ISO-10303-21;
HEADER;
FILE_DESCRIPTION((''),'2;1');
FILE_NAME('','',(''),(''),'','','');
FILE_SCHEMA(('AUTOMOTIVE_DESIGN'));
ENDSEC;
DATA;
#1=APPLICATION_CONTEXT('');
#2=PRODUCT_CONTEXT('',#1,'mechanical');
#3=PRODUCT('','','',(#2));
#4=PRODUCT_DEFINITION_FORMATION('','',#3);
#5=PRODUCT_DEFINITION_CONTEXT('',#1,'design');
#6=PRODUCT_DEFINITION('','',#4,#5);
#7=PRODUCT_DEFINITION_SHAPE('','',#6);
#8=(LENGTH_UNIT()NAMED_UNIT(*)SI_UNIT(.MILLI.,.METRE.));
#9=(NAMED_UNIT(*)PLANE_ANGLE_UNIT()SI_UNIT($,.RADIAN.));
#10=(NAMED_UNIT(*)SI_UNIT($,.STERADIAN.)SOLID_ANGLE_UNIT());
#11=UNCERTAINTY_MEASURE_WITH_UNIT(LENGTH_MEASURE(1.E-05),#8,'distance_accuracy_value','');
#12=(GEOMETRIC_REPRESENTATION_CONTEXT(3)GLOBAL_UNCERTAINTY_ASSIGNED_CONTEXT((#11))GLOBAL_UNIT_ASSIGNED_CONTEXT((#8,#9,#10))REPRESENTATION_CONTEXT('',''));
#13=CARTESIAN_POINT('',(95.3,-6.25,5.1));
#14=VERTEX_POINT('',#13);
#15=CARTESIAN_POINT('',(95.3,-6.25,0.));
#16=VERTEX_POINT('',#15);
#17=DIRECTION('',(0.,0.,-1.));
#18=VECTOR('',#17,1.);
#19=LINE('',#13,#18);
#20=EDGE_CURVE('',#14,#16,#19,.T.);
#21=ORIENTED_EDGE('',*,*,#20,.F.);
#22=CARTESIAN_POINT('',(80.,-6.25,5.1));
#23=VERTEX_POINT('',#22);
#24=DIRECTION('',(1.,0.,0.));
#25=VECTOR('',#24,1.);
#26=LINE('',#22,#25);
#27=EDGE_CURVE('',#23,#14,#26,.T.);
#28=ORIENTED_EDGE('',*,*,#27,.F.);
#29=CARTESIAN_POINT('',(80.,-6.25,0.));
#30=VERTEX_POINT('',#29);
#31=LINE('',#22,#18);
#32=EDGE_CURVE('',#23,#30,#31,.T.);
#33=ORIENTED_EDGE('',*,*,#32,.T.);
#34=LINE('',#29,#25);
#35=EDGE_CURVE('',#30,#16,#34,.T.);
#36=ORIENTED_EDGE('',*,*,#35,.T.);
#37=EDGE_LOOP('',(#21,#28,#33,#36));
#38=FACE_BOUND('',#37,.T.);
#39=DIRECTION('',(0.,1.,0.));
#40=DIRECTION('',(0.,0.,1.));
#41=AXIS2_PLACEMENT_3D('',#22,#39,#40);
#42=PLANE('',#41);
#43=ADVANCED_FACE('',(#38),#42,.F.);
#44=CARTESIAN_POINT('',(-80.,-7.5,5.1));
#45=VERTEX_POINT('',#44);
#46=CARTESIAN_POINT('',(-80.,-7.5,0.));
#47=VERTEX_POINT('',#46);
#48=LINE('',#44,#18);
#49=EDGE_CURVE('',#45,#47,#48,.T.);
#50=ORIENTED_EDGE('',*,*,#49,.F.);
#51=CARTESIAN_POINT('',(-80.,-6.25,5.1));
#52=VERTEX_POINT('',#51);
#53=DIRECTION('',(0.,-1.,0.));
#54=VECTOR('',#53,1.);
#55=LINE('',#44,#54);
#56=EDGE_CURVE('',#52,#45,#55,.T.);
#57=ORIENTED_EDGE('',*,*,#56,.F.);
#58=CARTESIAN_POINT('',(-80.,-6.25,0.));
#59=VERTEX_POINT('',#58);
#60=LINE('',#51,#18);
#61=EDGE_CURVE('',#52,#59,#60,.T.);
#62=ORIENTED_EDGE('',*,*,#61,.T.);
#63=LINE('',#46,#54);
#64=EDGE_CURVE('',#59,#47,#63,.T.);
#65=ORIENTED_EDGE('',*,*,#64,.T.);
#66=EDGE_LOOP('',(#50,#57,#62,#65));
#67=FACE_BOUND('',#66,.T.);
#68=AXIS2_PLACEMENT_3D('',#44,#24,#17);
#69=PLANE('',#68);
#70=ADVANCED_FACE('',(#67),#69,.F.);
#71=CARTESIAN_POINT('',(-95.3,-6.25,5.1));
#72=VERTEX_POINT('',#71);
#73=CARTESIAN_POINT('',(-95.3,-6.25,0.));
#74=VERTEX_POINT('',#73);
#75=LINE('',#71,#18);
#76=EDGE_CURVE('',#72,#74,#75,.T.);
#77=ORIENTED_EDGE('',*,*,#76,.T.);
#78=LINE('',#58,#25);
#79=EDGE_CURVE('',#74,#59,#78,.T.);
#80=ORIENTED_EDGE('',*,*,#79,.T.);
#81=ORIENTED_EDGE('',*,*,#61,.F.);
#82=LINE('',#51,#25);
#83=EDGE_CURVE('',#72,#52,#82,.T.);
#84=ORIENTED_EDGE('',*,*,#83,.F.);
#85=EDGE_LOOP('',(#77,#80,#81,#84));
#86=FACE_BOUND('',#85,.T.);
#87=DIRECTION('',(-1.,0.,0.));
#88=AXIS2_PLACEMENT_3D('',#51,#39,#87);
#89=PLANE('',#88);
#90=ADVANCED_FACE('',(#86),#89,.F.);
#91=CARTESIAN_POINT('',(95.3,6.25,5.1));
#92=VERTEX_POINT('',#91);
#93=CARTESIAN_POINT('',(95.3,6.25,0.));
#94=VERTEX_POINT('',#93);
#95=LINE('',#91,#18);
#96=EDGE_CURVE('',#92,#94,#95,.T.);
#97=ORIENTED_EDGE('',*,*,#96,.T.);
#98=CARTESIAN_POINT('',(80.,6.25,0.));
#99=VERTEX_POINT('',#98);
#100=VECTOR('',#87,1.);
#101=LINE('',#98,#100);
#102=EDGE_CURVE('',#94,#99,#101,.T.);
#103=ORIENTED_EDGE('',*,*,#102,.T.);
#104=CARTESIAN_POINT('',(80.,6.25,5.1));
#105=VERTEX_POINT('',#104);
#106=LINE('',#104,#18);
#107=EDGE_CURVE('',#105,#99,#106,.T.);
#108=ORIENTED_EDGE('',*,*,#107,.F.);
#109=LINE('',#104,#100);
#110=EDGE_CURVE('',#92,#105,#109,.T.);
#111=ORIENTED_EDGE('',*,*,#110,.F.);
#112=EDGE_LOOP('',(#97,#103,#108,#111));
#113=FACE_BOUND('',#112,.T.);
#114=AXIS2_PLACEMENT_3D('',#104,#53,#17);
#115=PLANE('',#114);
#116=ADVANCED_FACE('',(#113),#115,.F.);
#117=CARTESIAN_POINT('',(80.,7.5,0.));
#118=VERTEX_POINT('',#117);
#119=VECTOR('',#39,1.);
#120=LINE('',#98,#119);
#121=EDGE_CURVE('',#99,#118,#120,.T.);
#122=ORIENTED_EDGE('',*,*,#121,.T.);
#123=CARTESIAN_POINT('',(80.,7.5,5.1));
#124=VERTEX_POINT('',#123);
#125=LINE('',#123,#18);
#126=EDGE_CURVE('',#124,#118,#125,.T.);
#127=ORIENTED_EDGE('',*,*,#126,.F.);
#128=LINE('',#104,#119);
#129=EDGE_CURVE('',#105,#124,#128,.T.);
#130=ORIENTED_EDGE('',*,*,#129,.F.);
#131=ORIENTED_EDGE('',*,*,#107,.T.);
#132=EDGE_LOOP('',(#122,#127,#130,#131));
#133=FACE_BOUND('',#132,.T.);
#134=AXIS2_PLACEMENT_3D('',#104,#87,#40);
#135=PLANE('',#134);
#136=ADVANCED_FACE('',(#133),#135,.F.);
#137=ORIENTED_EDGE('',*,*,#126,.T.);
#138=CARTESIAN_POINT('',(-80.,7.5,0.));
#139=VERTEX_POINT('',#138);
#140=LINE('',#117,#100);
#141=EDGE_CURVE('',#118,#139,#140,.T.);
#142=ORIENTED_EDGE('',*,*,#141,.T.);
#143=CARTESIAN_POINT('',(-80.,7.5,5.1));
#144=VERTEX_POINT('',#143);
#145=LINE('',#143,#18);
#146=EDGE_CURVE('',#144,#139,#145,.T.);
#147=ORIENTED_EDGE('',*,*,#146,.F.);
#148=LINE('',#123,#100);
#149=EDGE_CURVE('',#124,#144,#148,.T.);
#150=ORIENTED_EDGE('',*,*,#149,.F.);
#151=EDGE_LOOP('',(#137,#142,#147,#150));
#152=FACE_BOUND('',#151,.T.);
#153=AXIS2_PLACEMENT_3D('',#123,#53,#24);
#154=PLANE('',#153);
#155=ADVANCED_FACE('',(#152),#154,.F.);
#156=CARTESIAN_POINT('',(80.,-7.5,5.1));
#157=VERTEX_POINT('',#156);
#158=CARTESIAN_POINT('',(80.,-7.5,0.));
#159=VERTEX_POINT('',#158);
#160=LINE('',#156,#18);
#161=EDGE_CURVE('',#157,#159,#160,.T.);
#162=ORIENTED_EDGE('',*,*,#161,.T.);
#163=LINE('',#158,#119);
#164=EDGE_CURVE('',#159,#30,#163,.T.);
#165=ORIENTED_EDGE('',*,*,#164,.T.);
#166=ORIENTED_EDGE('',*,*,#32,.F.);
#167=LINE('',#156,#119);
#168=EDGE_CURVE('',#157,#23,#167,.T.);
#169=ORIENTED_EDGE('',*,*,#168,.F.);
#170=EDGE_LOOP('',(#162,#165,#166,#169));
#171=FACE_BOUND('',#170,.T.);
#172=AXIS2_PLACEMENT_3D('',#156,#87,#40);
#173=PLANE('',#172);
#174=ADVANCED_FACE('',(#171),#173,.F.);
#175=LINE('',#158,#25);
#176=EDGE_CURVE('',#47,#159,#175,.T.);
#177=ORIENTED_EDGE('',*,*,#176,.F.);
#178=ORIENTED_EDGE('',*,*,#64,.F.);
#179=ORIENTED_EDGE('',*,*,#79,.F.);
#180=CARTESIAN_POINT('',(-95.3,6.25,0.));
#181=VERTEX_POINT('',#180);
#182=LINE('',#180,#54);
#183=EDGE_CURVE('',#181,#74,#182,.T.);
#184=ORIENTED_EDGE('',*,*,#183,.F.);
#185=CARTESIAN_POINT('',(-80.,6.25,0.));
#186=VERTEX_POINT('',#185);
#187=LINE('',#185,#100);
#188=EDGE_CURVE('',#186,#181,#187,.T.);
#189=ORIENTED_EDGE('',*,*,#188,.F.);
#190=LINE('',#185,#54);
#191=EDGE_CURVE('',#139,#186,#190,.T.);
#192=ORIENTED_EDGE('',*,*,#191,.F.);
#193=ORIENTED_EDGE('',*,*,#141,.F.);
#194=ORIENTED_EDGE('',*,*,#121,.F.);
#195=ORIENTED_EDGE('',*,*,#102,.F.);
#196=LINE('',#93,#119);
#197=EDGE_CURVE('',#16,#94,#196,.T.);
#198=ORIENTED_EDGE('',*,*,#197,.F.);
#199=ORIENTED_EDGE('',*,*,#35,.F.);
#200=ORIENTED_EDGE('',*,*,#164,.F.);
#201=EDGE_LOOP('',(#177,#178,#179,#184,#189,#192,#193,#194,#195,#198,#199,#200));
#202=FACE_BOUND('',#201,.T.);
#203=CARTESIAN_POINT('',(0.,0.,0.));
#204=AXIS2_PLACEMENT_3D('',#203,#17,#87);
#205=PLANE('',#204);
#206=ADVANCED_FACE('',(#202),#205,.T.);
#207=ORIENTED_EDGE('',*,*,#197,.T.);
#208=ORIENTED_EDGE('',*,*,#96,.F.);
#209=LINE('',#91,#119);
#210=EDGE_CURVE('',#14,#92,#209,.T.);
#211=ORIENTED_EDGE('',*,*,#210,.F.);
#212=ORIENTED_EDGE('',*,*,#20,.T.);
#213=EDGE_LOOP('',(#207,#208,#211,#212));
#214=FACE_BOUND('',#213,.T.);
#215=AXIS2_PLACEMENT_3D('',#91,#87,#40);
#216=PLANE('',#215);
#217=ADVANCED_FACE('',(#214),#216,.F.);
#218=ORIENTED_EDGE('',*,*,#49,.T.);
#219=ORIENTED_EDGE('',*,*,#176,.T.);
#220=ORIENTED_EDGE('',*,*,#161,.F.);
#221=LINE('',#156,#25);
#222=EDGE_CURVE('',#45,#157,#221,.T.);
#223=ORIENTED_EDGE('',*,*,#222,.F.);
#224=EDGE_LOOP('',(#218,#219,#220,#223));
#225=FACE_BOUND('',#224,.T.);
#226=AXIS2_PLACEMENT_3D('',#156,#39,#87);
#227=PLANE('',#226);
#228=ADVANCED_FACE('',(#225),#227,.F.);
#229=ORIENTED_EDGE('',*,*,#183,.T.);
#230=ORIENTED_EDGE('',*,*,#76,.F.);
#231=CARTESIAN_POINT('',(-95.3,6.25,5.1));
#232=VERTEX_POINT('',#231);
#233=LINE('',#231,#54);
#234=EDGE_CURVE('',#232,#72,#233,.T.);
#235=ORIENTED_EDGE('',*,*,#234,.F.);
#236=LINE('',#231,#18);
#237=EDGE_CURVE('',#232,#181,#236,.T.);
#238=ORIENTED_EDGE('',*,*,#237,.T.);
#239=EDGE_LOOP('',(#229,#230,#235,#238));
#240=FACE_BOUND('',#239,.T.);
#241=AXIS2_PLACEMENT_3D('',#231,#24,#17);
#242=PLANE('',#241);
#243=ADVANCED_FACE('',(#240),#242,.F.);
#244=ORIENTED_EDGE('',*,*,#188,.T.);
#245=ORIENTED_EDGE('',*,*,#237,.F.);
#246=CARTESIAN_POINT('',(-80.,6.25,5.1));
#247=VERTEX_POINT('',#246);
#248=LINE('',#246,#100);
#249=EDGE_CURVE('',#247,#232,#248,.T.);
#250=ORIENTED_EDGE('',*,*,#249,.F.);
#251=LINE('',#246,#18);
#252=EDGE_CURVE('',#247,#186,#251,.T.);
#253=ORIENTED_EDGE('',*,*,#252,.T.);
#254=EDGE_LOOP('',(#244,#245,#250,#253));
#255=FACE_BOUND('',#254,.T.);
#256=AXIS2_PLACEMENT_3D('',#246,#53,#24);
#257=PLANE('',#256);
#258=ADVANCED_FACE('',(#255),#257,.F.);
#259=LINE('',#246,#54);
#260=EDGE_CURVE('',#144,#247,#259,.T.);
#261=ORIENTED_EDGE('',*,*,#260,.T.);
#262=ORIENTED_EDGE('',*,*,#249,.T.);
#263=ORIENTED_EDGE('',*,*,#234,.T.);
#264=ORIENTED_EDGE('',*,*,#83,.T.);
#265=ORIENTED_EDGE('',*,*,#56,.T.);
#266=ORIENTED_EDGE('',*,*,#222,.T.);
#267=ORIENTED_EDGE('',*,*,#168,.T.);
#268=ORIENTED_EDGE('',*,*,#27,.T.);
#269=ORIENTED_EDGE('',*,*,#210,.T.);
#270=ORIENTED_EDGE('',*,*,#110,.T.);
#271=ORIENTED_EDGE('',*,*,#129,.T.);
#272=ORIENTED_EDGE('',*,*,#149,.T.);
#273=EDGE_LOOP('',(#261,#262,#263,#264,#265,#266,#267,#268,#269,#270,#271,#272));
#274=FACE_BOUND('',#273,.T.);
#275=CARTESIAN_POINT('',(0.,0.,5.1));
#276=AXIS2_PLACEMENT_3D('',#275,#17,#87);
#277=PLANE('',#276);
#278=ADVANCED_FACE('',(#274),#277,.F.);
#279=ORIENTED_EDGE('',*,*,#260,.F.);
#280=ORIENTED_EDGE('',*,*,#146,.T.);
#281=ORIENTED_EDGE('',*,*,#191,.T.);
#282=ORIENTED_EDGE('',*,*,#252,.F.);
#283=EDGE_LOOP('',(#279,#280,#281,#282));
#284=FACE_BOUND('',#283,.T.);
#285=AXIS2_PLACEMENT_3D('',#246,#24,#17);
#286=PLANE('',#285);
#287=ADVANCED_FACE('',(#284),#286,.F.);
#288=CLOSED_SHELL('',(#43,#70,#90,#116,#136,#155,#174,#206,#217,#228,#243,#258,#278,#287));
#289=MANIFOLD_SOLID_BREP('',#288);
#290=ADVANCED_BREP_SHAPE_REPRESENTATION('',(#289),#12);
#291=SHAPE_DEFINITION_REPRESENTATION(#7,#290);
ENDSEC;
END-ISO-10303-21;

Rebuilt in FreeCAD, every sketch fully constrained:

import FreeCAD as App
import Part
import Sketcher
from FreeCAD import Vector

doc = App.newDocument("Part")
params = doc.addObject("Spreadsheet::Sheet", "Params")
for row, (alias, value) in enumerate([
    ("sketch1_width", "160 mm"),
    ("sketch1_width2", "15.3 mm"),
    ("sketch1_height", "12.5 mm"),
    ("pad1_length", "5.1 mm"),
], start=1):
    params.set(f"A{row}", alias)
    params.set(f"B{row}", "=" + value)
    params.setAlias(f"B{row}", alias)

body = doc.addObject("PartDesign::Body", "Body")

sketch1 = body.newObject("Sketcher::SketchObject", "Sketch")
sketch1.AttachmentSupport = (doc.getObject("XY_Plane"), [""])
sketch1.MapMode = "FlatFace"
sketch1.addGeometry([
    Part.LineSegment(Vector(-80, 7.5, 0), Vector(-80, 6.2, 0)),
    Part.LineSegment(Vector(-80, 6.2, 0), Vector(-95.3, 6.2, 0)),
    Part.LineSegment(Vector(-95.3, 6.2, 0), Vector(-95.3, -6.2, 0)),
    Part.LineSegment(Vector(-95.3, -6.2, 0), Vector(-80, -6.2, 0)),
    Part.LineSegment(Vector(-80, -6.2, 0), Vector(-80, -7.5, 0)),
    Part.LineSegment(Vector(-80, -7.5, 0), Vector(80, -7.5, 0)),
    Part.LineSegment(Vector(80, -7.5, 0), Vector(80, -6.2, 0)),
    Part.LineSegment(Vector(80, -6.2, 0), Vector(95.3, -6.2, 0)),
    Part.LineSegment(Vector(95.3, -6.2, 0), Vector(95.3, 6.2, 0)),
    Part.LineSegment(Vector(95.3, 6.2, 0), Vector(80, 6.2, 0)),
    Part.LineSegment(Vector(80, 6.2, 0), Vector(80, 7.5, 0)),
    Part.LineSegment(Vector(80, 7.5, 0), Vector(-80, 7.5, 0)),
], False)
sketch1.addConstraint([
    Sketcher.Constraint("Coincident", 0, 2, 1, 1),
    Sketcher.Constraint("Coincident", 1, 2, 2, 1),
    Sketcher.Constraint("Coincident", 2, 2, 3, 1),
    Sketcher.Constraint("Coincident", 3, 2, 4, 1),
    Sketcher.Constraint("Coincident", 4, 2, 5, 1),
    Sketcher.Constraint("Coincident", 5, 2, 6, 1),
    Sketcher.Constraint("Coincident", 6, 2, 7, 1),
    Sketcher.Constraint("Coincident", 7, 2, 8, 1),
    Sketcher.Constraint("Coincident", 8, 2, 9, 1),
    Sketcher.Constraint("Coincident", 9, 2, 10, 1),
    Sketcher.Constraint("Coincident", 10, 2, 11, 1),
    Sketcher.Constraint("Coincident", 11, 2, 0, 1),
    Sketcher.Constraint("Vertical", 0),
    Sketcher.Constraint("Horizontal", 1),
    Sketcher.Constraint("Vertical", 2),
    Sketcher.Constraint("Horizontal", 3),
    Sketcher.Constraint("Vertical", 4),
    Sketcher.Constraint("Horizontal", 5),
    Sketcher.Constraint("Vertical", 6),
    Sketcher.Constraint("Horizontal", 7),
    Sketcher.Constraint("Vertical", 8),
    Sketcher.Constraint("Horizontal", 9),
    Sketcher.Constraint("Vertical", 10),
    Sketcher.Constraint("Horizontal", 11),
    Sketcher.Constraint("Symmetric", 0, 2, 6, 2, -1, 1),
    Sketcher.Constraint("Symmetric", 2, 2, 8, 2, -1, 1),
    Sketcher.Constraint("Symmetric", 4, 2, 10, 2, -1, 1),
    Sketcher.Constraint("Symmetric", 3, 2, 6, 2, -2),
    Sketcher.Constraint("DistanceX", 5, 1, 5, 2, 160.0),
    Sketcher.Constraint("DistanceX", 1, 2, 1, 1, 15.3),
    Sketcher.Constraint("DistanceY", 2, 2, 2, 1, 12.5),
    Sketcher.Constraint("DistanceY", 5, 2, 10, 2, 15.0),
])
sketch1.setExpression("Constraints[28]", "Params.sketch1_width")
sketch1.setExpression("Constraints[29]", "Params.sketch1_width2")
sketch1.setExpression("Constraints[30]", "Params.sketch1_height")
pad1 = body.newObject("PartDesign::Pad", "Pad")
pad1.Profile = sketch1
pad1.setExpression("Length", "Params.pad1_length")

doc.recompute()
